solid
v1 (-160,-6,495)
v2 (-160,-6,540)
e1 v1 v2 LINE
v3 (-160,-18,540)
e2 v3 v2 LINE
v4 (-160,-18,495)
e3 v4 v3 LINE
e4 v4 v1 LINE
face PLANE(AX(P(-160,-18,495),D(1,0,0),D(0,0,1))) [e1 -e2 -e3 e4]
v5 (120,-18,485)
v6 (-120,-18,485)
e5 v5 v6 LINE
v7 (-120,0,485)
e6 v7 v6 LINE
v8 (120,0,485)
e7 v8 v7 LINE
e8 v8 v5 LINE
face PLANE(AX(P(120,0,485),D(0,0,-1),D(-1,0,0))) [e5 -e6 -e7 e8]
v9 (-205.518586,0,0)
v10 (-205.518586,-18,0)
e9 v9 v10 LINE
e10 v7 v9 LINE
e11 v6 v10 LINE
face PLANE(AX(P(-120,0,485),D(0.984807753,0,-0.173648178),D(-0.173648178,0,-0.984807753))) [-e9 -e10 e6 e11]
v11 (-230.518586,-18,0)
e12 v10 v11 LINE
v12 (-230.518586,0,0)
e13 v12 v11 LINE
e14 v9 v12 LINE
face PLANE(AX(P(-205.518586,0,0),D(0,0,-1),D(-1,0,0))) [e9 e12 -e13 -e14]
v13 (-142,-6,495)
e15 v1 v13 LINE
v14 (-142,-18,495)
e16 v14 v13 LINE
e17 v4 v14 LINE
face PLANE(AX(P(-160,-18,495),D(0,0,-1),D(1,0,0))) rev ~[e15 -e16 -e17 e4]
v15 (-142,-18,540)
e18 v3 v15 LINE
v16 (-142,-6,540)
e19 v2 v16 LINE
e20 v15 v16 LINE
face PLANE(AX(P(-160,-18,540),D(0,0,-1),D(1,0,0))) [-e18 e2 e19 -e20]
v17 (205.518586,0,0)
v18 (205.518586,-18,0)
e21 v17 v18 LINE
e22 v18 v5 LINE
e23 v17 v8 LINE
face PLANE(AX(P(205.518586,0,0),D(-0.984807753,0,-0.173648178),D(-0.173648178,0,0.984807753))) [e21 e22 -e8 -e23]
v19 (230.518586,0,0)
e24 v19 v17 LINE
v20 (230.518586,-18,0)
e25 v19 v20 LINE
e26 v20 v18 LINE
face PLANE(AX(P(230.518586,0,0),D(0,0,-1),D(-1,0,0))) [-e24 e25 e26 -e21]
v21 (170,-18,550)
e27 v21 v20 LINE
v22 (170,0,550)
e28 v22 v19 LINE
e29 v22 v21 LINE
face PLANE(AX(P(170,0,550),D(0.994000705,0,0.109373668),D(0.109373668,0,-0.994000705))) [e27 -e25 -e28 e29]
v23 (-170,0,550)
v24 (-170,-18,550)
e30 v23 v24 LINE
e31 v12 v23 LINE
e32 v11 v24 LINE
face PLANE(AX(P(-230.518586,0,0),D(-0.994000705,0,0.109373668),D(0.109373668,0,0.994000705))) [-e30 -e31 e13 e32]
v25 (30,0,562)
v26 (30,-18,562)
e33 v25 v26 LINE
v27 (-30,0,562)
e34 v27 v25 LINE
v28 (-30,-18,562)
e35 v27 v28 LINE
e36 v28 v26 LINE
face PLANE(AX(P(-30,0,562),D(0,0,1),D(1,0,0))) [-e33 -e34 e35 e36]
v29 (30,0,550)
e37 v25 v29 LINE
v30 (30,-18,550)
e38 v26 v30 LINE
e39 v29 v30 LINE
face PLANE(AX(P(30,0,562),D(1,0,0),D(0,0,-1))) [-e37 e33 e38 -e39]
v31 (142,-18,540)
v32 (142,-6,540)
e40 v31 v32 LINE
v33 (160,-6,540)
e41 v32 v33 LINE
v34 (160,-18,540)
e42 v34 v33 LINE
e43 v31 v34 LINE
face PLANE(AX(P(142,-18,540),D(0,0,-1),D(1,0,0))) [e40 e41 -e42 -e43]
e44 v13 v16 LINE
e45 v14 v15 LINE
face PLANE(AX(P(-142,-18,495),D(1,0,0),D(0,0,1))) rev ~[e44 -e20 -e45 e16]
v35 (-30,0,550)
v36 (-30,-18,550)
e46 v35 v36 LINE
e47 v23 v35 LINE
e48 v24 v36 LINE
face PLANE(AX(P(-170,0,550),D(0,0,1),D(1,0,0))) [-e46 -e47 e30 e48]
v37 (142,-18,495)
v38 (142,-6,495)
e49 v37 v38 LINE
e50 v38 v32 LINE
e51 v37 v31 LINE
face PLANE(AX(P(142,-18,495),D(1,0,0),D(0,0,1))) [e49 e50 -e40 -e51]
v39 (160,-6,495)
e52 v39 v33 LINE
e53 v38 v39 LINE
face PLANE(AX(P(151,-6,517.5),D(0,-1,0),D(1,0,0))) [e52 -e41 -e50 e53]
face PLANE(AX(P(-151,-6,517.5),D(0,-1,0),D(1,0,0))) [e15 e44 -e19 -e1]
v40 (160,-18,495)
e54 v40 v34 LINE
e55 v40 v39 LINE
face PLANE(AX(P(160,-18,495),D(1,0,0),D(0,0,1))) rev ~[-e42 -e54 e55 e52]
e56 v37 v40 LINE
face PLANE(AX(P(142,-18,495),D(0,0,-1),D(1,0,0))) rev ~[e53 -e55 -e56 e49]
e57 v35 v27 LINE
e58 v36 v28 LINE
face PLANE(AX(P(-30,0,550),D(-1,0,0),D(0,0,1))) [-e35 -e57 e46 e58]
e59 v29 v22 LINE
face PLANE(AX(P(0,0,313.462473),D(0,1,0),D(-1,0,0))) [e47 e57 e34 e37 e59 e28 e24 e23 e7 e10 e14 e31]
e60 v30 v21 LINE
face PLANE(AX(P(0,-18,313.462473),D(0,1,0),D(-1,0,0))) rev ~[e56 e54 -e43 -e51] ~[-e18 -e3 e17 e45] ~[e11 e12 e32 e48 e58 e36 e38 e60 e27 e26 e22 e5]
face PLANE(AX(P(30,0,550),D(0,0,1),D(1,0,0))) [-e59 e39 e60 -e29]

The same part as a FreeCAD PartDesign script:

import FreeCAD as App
import Part
import Sketcher
Q = App.Units.Quantity

doc = App.newDocument("Part")
params = doc.addObject("Spreadsheet::Sheet", "Params")
for row, (alias, value) in enumerate([
    ("sketch1_width", "25 mm"),
    ("sketch1_width2", "240 mm"),
    ("sketch1_width3", "140 mm"),
    ("sketch1_width4", "60 mm"),
    ("sketch1_height", "12 mm"),
    ("pad1_length", "18 mm"),
    ("sketch2_width", "18 mm"),
    ("sketch2_height", "45 mm"),
    ("pocket1_length", "12 mm"),
], start=1):
    params.set(f"A{row}", alias)
    params.set(f"B{row}", "=" + value)
    params.setAlias(f"B{row}", alias)

body = doc.addObject("PartDesign::Body", "Body")

# Sketch on XZ plane
sketch1 = body.newObject("Sketcher::SketchObject", "Sketch")
sketch1.AttachmentSupport = (doc.getObject("XZ_Plane"), [""])
sketch1.MapMode = "FlatFace"
sketch1.addGeometry([
    Part.LineSegment(App.Vector(-170, 550, 0), App.Vector(-231, 0, 0)),  # 0
    Part.LineSegment(App.Vector(-231, 0, 0), App.Vector(-206, 0, 0)),  # 1
    Part.LineSegment(App.Vector(-206, 0, 0), App.Vector(-120, 485, 0)),  # 2
    Part.LineSegment(App.Vector(-120, 485, 0), App.Vector(120, 485, 0)),  # 3
    Part.LineSegment(App.Vector(120, 485, 0), App.Vector(206, 0, 0)),  # 4
    Part.LineSegment(App.Vector(206, 0, 0), App.Vector(231, 0, 0)),  # 5
    Part.LineSegment(App.Vector(231, 0, 0), App.Vector(170, 550, 0)),  # 6
    Part.LineSegment(App.Vector(170, 550, 0), App.Vector(30, 550, 0)),  # 7
    Part.LineSegment(App.Vector(30, 550, 0), App.Vector(30, 562, 0)),  # 8
    Part.LineSegment(App.Vector(30, 562, 0), App.Vector(-30, 562, 0)),  # 9
    Part.LineSegment(App.Vector(-30, 562, 0), App.Vector(-30, 550, 0)),  # 10
    Part.LineSegment(App.Vector(-30, 550, 0), App.Vector(-170, 550, 0)),  # 11
], False)
sketch1.addConstraint([
    Sketcher.Constraint("Coincident", 0, 2, 1, 1),
    Sketcher.Constraint("Coincident", 1, 2, 2, 1),
    Sketcher.Constraint("Coincident", 2, 2, 3, 1),
    Sketcher.Constraint("Coincident", 3, 2, 4, 1),
    Sketcher.Constraint("Coincident", 4, 2, 5, 1),
    Sketcher.Constraint("Coincident", 5, 2, 6, 1),
    Sketcher.Constraint("Coincident", 6, 2, 7, 1),
    Sketcher.Constraint("Coincident", 7, 2, 8, 1),
    Sketcher.Constraint("Coincident", 8, 2, 9, 1),
    Sketcher.Constraint("Coincident", 9, 2, 10, 1),
    Sketcher.Constraint("Coincident", 10, 2, 11, 1),
    Sketcher.Constraint("Coincident", 11, 2, 0, 1),
    Sketcher.Constraint("Horizontal", 1),
    Sketcher.Constraint("Horizontal", 3),
    Sketcher.Constraint("Horizontal", 5),
    Sketcher.Constraint("Horizontal", 7),
    Sketcher.Constraint("Vertical", 8),
    Sketcher.Constraint("Horizontal", 9),
    Sketcher.Constraint("Vertical", 10),
    Sketcher.Constraint("Horizontal", 11),
    Sketcher.Constraint("Symmetric", 1, 2, 4, 2, -1, 1),
    Sketcher.Constraint("Symmetric", 0, 2, 5, 2, -2),
    Sketcher.Constraint("Symmetric", 7, 2, 10, 2, -2),
    Sketcher.Constraint("Equal", 7, 11),
    Sketcher.Constraint("Equal", 2, 4),
    Sketcher.Constraint("DistanceX", 1, 1, 1, 2, 25.0),
    Sketcher.Constraint("DistanceX", 3, 1, 3, 2, 240.0),
    Sketcher.Constraint("DistanceX", 7, 2, 7, 1, 140.0),
    Sketcher.Constraint("DistanceX", 9, 2, 9, 1, 60.0),
    Sketcher.Constraint("DistanceY", 8, 1, 8, 2, 12.0),
    Sketcher.Constraint("Angle", 2, Q("80 deg")),
    Sketcher.Constraint("DistanceY", -1, 1, 2, 2, 485.0),
    Sketcher.Constraint("DistanceY", -1, 1, 6, 2, 550.0),
])
sketch1.setExpression("Constraints[25]", "Params.sketch1_width")
sketch1.setExpression("Constraints[26]", "Params.sketch1_width2")
sketch1.setExpression("Constraints[27]", "Params.sketch1_width3")
sketch1.setExpression("Constraints[28]", "Params.sketch1_width4")
sketch1.setExpression("Constraints[29]", "Params.sketch1_height")
pad1 = body.newObject("PartDesign::Pad", "Pad")
pad1.Profile = sketch1
pad1.setExpression("Length", "Params.pad1_length")

# Sketch on XZ plane
sketch2 = body.newObject("Sketcher::SketchObject", "Sketch001")
sketch2.AttachmentSupport = (doc.getObject("XZ_Plane"), [""])
sketch2.MapMode = "FlatFace"
sketch2.AttachmentOffset = App.Placement(App.Vector(0, 0, 18), App.Rotation())
sketch2.addGeometry([
    Part.LineSegment(App.Vector(-160, 540, 0), App.Vector(-160, 495, 0)),  # 0
    Part.LineSegment(App.Vector(-160, 495, 0), App.Vector(-142, 495, 0)),  # 1
    Part.LineSegment(App.Vector(-142, 495, 0), App.Vector(-142, 540, 0)),  # 2
    Part.LineSegment(App.Vector(-142, 540, 0), App.Vector(-160, 540, 0)),  # 3
    Part.LineSegment(App.Vector(142, 540, 0), App.Vector(142, 495, 0)),  # 4
    Part.LineSegment(App.Vector(142, 495, 0), App.Vector(160, 495, 0)),  # 5
    Part.LineSegment(App.Vector(160, 495, 0), App.Vector(160, 540, 0)),  # 6
    Part.LineSegment(App.Vector(160, 540, 0), App.Vector(142, 540, 0)),  # 7
], False)
sketch2.addConstraint([
    Sketcher.Constraint("Coincident", 0, 2, 1, 1),
    Sketcher.Constraint("Coincident", 1, 2, 2, 1),
    Sketcher.Constraint("Coincident", 2, 2, 3, 1),
    Sketcher.Constraint("Coincident", 3, 2, 0, 1),
    Sketcher.Constraint("Coincident", 4, 2, 5, 1),
    Sketcher.Constraint("Coincident", 5, 2, 6, 1),
    Sketcher.Constraint("Coincident", 6, 2, 7, 1),
    Sketcher.Constraint("Coincident", 7, 2, 4, 1),
    Sketcher.Constraint("Vertical", 0),
    Sketcher.Constraint("Horizontal", 1),
    Sketcher.Constraint("Vertical", 2),
    Sketcher.Constraint("Horizontal", 3),
    Sketcher.Constraint("Vertical", 4),
    Sketcher.Constraint("Horizontal", 5),
    Sketcher.Constraint("Vertical", 6),
    Sketcher.Constraint("Horizontal", 7),
    Sketcher.Constraint("Symmetric", 1, 2, 4, 2, -2),
    Sketcher.Constraint("Symmetric", 3, 2, 6, 2, -2),
    Sketcher.Constraint("DistanceX", 1, 1, 1, 2, 18.0),
    Sketcher.Constraint("DistanceY", 0, 2, 0, 1, 45.0),
    Sketcher.Constraint("DistanceX", 0, 2, -1, 1, 160.0),
    Sketcher.Constraint("DistanceY", -1, 1, 0, 2, 495.0),
])
sketch2.setExpression("Constraints[18]", "Params.sketch2_width")
sketch2.setExpression("Constraints[19]", "Params.sketch2_height")
pocket1 = body.newObject("PartDesign::Pocket", "Pocket")
pocket1.Profile = sketch2
pocket1.setExpression("Length", "Params.pocket1_length")

doc.recompute()
